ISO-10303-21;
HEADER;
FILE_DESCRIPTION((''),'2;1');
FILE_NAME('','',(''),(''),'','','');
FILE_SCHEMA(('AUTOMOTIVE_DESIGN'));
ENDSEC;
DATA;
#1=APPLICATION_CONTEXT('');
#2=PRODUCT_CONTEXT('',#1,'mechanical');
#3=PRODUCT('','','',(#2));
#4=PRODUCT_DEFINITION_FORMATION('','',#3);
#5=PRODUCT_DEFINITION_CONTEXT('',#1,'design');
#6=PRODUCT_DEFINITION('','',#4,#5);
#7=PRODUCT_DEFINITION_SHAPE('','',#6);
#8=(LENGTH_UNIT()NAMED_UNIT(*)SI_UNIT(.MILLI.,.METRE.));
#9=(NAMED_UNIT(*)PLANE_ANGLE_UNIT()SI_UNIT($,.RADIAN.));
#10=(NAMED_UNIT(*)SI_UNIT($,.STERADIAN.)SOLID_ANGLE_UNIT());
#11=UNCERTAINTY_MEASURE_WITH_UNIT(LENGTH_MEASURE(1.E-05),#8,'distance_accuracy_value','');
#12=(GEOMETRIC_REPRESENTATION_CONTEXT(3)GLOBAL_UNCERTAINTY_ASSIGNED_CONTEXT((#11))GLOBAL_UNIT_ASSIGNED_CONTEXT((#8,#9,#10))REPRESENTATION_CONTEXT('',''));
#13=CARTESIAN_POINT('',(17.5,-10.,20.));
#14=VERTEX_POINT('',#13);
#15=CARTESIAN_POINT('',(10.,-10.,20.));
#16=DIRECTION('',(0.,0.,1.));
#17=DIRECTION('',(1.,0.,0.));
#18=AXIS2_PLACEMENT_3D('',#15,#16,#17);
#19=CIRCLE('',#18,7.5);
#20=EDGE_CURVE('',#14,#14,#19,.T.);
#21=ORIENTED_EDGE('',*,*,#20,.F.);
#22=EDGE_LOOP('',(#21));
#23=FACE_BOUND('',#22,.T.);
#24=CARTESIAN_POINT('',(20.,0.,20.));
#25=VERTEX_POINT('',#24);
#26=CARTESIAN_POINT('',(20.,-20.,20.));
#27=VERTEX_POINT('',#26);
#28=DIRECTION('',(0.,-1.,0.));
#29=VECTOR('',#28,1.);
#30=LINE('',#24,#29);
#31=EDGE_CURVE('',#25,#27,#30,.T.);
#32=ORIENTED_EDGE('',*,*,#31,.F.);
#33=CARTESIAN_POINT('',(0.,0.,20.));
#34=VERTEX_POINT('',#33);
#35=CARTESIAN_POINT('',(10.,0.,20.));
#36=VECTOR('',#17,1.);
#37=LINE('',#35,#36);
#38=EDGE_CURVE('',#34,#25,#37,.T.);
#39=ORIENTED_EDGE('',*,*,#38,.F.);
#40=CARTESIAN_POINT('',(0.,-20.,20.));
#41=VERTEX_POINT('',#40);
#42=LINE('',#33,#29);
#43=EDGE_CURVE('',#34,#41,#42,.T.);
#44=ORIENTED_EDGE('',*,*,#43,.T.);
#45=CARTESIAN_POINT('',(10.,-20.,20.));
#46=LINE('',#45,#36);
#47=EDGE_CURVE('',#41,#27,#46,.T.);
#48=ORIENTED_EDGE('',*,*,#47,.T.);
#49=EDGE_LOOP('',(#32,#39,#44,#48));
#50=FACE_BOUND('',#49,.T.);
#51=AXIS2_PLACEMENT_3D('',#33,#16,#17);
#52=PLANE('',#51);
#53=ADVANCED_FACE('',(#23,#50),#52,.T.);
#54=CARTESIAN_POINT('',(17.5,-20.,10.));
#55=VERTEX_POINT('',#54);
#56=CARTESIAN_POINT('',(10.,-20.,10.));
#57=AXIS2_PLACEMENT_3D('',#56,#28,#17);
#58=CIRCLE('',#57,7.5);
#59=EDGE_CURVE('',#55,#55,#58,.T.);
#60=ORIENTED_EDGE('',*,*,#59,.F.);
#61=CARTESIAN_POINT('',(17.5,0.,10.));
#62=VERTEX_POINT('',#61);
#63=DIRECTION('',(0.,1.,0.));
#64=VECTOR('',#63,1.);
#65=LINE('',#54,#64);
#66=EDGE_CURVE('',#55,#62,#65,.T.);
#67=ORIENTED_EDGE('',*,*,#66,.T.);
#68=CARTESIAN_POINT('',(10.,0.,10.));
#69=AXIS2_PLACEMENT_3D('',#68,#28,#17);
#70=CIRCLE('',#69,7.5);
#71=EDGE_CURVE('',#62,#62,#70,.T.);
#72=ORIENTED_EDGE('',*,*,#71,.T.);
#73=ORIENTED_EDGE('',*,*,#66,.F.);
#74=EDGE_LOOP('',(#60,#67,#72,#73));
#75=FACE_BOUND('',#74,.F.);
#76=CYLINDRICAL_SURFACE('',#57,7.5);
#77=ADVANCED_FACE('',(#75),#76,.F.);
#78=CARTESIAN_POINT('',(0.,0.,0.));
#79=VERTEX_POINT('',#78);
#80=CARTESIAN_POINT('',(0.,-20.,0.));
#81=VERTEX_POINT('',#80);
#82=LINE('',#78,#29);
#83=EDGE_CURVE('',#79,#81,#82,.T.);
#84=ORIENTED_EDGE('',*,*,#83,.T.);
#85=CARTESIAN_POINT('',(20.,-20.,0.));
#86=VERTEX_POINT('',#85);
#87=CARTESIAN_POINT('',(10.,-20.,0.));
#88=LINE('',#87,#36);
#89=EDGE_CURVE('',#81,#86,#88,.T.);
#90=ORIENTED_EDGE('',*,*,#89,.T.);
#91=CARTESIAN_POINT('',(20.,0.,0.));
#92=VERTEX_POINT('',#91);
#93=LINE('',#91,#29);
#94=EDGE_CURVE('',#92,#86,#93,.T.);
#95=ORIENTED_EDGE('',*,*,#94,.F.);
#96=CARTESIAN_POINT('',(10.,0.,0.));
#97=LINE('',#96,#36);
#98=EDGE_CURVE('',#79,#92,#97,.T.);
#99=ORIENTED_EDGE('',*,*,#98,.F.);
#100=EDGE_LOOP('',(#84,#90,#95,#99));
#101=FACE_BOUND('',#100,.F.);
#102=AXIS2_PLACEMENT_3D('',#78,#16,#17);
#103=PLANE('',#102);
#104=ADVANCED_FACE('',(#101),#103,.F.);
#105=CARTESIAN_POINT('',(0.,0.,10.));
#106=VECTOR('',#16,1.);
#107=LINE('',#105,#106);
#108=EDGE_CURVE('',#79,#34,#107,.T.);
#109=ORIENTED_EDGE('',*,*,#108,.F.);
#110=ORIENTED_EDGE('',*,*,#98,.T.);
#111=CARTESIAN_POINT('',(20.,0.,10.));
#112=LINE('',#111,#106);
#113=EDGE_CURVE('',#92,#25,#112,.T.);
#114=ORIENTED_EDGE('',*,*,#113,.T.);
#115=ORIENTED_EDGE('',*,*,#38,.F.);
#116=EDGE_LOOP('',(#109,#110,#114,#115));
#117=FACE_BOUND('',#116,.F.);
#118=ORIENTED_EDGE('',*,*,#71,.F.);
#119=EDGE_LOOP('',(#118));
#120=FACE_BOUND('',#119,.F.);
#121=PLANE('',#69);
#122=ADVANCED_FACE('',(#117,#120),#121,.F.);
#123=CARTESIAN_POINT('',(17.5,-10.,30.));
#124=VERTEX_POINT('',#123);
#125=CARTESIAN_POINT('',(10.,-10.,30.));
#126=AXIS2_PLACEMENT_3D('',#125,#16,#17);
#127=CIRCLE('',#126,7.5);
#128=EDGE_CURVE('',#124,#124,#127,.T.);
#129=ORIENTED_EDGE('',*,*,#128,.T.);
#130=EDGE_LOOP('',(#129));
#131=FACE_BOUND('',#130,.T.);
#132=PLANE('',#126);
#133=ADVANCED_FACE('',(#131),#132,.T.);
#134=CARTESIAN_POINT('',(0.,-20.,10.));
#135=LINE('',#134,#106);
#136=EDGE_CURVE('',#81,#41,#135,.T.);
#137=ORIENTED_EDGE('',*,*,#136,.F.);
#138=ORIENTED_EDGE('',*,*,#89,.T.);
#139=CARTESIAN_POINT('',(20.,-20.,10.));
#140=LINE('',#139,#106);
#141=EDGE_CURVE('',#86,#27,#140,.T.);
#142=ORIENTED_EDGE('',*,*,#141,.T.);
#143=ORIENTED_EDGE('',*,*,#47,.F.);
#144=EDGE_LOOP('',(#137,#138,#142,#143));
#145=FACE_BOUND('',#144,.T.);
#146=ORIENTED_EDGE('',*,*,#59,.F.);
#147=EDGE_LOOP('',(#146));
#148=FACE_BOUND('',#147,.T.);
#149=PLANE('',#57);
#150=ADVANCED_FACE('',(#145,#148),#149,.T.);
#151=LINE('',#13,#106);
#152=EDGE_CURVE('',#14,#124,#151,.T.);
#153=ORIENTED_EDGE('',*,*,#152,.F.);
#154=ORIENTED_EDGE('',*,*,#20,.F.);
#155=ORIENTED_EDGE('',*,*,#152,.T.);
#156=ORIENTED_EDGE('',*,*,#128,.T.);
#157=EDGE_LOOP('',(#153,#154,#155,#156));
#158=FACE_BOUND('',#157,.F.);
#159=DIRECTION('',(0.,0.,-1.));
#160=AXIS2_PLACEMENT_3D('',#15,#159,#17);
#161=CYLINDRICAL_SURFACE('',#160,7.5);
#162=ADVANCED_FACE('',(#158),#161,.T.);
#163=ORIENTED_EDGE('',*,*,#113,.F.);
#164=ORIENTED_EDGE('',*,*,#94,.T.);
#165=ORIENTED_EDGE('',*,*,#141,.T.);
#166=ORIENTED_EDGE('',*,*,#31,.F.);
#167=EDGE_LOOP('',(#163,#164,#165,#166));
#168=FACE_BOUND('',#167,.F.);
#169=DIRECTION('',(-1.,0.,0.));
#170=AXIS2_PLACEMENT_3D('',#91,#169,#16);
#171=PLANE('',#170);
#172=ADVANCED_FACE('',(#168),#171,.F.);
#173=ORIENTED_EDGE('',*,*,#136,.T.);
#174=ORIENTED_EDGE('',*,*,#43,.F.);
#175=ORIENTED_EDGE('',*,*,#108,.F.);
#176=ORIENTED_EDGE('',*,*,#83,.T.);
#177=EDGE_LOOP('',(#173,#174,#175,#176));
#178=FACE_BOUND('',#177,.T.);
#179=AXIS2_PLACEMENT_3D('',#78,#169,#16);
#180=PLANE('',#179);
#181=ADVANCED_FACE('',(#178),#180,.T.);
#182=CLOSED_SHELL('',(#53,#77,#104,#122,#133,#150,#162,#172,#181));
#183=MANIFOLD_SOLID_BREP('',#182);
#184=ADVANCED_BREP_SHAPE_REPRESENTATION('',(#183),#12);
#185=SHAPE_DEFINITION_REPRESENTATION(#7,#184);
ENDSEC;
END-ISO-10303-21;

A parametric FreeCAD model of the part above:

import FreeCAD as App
import Part
import Sketcher
from FreeCAD import Vector
Q = App.Units.Quantity

doc = App.newDocument("Part")
body = doc.addObject("PartDesign::Body", "Body")

sketch1 = body.newObject("Sketcher::SketchObject", "Sketch")
sketch1.AttachmentSupport = (doc.getObject("XZ_Plane"), [""])
sketch1.MapMode = "FlatFace"
sketch1.addGeometry([
    Part.LineSegment(Vector(0, 20, 0), Vector(0, 0, 0)),
    Part.LineSegment(Vector(0, 0, 0), Vector(20, 0, 0)),
    Part.LineSegment(Vector(20, 0, 0), Vector(20, 20, 0)),
    Part.LineSegment(Vector(20, 20, 0), Vector(0, 20, 0)),
], False)
sketch1.addConstraint([
    Sketcher.Constraint("Coincident", 0, 2, 1, 1),
    Sketcher.Constraint("Coincident", 1, 2, 2, 1),
    Sketcher.Constraint("Coincident", 2, 2, 3, 1),
    Sketcher.Constraint("Coincident", 3, 2, 0, 1),
    Sketcher.Constraint("Vertical", 0),
    Sketcher.Constraint("Horizontal", 1),
    Sketcher.Constraint("Vertical", 2),
    Sketcher.Constraint("Horizontal", 3),
    Sketcher.Constraint("Coincident", 0, 2, -1, 1),
    Sketcher.Constraint("Equal", 3, 0),
    Sketcher.Constraint("DistanceX", 1, 1, 1, 2, Q("20 mm")),
])
pad1 = body.newObject("PartDesign::Pad", "Pad")
pad1.Profile = sketch1
pad1.Length = 20

sketch2 = body.newObject("Sketcher::SketchObject", "Sketch001")
sketch2.AttachmentSupport = (doc.getObject("XY_Plane"), [""])
sketch2.MapMode = "FlatFace"
sketch2.AttachmentOffset = App.Placement(Vector(0, 0, 20), App.Rotation())
sketch2.addGeometry(Part.Circle(Vector(10, -10, 0), Vector(0, 0, 1), 8), False)
sketch2.addConstraint([
    Sketcher.Constraint("Diameter", 0, Q("15 mm")),
    Sketcher.Constraint("DistanceX", -1, 1, 0, 3, Q("10 mm")),
    Sketcher.Constraint("DistanceY", 0, 3, -1, 1, Q("10 mm")),
])
pad2 = body.newObject("PartDesign::Pad", "Pad001")
pad2.Profile = sketch2
pad2.Length = 10

sketch3 = body.newObject("Sketcher::SketchObject", "Sketch002")
sketch3.AttachmentSupport = (doc.getObject("XZ_Plane"), [""])
sketch3.MapMode = "FlatFace"
sketch3.AttachmentOffset = App.Placement(Vector(0, 0, 20), App.Rotation())
sketch3.addGeometry(Part.Circle(Vector(10, 10, 0), Vector(0, 0, 1), 8), False)
sketch3.addConstraint([
    Sketcher.Constraint("Diameter", 0, Q("15 mm")),
    Sketcher.Constraint("DistanceX", -1, 1, 0, 3, Q("10 mm")),
    Sketcher.Constraint("DistanceY", -1, 1, 0, 3, Q("10 mm")),
])
pocket1 = body.newObject("PartDesign::Pocket", "Pocket")
pocket1.Profile = sketch3
pocket1.Length = 25

doc.recompute()
